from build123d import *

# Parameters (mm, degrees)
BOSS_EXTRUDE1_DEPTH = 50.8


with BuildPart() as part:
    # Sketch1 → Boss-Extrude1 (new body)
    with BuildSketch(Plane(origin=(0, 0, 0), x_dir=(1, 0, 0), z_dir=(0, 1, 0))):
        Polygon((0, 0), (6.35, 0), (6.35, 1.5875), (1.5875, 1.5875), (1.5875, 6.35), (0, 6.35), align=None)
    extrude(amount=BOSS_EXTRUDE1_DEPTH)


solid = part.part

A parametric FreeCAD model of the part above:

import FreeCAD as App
import Part
import Sketcher
from FreeCAD import Vector
Q = App.Units.Quantity

doc = App.newDocument("Part")
params = doc.addObject("Spreadsheet::Sheet", "Params")
for row, (alias, value) in enumerate([
    ("sketch1_width", "0.25 in"),
    ("sketch1_width2", "0.1875 in"),
    ("pad1_length", "2 in"),
], start=1):
    params.set(f"A{row}", alias)
    params.set(f"B{row}", "=" + value)
    params.setAlias(f"B{row}", alias)

body = doc.addObject("PartDesign::Body", "Body")

sketch1 = doc.addObject("Sketcher::SketchObject", "Sketch")
body.addObject(sketch1)
sketch1.AttachmentSupport = (doc.XZ_Plane, [""])
sketch1.MapMode = "FlatFace"
sketch1.addGeometry([
    Part.LineSegment(Vector(0, 0, 0), Vector(6.3, 0, 0)),
    Part.LineSegment(Vector(6.3, 0, 0), Vector(6.3, -1.6, 0)),
    Part.LineSegment(Vector(6.3, -1.6, 0), Vector(1.6, -1.6, 0)),
    Part.LineSegment(Vector(1.6, -1.6, 0), Vector(1.6, -6.3, 0)),
    Part.LineSegment(Vector(1.6, -6.3, 0), Vector(0, -6.3, 0)),
    Part.LineSegment(Vector(0, -6.3, 0), Vector(0, 0, 0)),
], False)
sketch1.addConstraint([
    Sketcher.Constraint("Coincident", 0, 2, 1, 1),
    Sketcher.Constraint("Coincident", 1, 2, 2, 1),
    Sketcher.Constraint("Coincident", 2, 2, 3, 1),
    Sketcher.Constraint("Coincident", 3, 2, 4, 1),
    Sketcher.Constraint("Coincident", 4, 2, 5, 1),
    Sketcher.Constraint("Coincident", 5, 2, 0, 1),
    Sketcher.Constraint("Horizontal", 0),
    Sketcher.Constraint("Vertical", 1),
    Sketcher.Constraint("Horizontal", 2),
    Sketcher.Constraint("Vertical", 3),
    Sketcher.Constraint("Horizontal", 4),
    Sketcher.Constraint("Vertical", 5),
    Sketcher.Constraint("Coincident", 5, 2, -1, 1),
    Sketcher.Constraint("Equal", 4, 1),
    Sketcher.Constraint("Equal", 2, 3),
    Sketcher.Constraint("DistanceX", 0, 1, 0, 2, Q("0.25 in")),
    Sketcher.Constraint("DistanceX", 2, 2, 2, 1, Q("0.1875 in")),
])
sketch1.setExpression("Constraints[15]", "Params.sketch1_width")
sketch1.setExpression("Constraints[16]", "Params.sketch1_width2")
pad1 = doc.addObject("PartDesign::Pad", "Pad")
body.addObject(pad1)
pad1.Profile = sketch1
pad1.setExpression("Length", "Params.pad1_length")
pad1.Reversed = True

doc.recompute()
